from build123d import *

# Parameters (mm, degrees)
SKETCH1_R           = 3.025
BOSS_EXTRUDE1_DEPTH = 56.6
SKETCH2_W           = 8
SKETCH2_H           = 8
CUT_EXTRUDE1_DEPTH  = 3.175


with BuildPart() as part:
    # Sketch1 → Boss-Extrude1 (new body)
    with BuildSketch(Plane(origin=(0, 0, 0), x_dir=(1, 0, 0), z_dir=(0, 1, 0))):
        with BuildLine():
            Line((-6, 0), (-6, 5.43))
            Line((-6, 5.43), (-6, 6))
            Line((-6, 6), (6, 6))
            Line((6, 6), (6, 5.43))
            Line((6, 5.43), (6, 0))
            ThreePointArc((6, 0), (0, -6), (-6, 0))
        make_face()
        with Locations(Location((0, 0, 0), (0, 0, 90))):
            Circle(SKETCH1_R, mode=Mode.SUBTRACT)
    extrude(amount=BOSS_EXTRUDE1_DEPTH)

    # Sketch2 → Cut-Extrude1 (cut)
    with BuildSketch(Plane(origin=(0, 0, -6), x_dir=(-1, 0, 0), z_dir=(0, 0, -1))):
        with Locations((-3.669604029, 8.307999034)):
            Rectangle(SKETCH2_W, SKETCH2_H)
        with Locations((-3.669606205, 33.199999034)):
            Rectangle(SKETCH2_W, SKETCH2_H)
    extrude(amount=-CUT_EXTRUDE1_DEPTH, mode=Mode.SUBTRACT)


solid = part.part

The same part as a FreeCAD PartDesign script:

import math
import FreeCAD as App
import Part
import Sketcher
Q = App.Units.Quantity


def add_polygon(sketch, points):
    """Adds a closed chain of lines whose ends are joined by coincident constraints."""
    first, n = sketch.GeometryCount, len(points)
    for a, b in zip(points, points[1:] + points[:1]):
        sketch.addGeometry(Part.LineSegment(App.Vector(*a, 0), App.Vector(*b, 0)), False)
    for i in range(n):
        sketch.addConstraint(Sketcher.Constraint("Coincident", first + i, 2, first + (i + 1) % n, 1))

doc = App.newDocument("Part")
params = doc.addObject("Spreadsheet::Sheet", "Params")
for row, (alias, value) in enumerate([
    ("sketch1_radius", "6 mm"),
    ("sketch1_diameter", "6.05 mm"),
    ("sketch1_height", "6 mm"),
    ("pad1_length", "56.6 mm"),
    ("sketch2_width", "8 mm"),
    ("pocket1_length", "3.175 mm"),
], start=1):
    params.set(f"A{row}", alias)
    params.set(f"B{row}", "=" + value)
    params.setAlias(f"B{row}", alias)

body = doc.addObject("PartDesign::Body", "Body")

# Sketch on XZ plane
sketch1 = body.newObject("Sketcher::SketchObject", "Sketch")
sketch1.AttachmentSupport = (doc.getObject("XZ_Plane"), [""])
sketch1.MapMode = "FlatFace"
sketch1.addGeometry([
    Part.LineSegment(App.Vector(-6, -6, 0), App.Vector(-6, 0, 0)),  # 0
    Part.ArcOfCircle(Part.Circle(App.Vector(0, 0, 0), App.Vector(0, 0, 1), 6), math.radians(0), math.radians(180)),  # 1
    Part.LineSegment(App.Vector(6, 0, 0), App.Vector(6, -6, 0)),  # 2
    Part.LineSegment(App.Vector(6, -6, 0), App.Vector(-6, -6, 0)),  # 3
    Part.Circle(App.Vector(0, 0, 0), App.Vector(0, 0, 1), 3),  # 4
], False)
sketch1.addConstraint([
    Sketcher.Constraint("Tangent", 0, 2, 1, 2),
    Sketcher.Constraint("Tangent", 1, 1, 2, 1),
    Sketcher.Constraint("Coincident", 2, 2, 3, 1),
    Sketcher.Constraint("Coincident", 3, 2, 0, 1),
    Sketcher.Constraint("Vertical", 0),
    Sketcher.Constraint("Vertical", 2),
    Sketcher.Constraint("Horizontal", 3),
    Sketcher.Constraint("Coincident", 1, 3, -1, 1),
    Sketcher.Constraint("Coincident", 4, 3, -1, 1),
    Sketcher.Constraint("Radius", 1, Q("6 mm")),
    Sketcher.Constraint("Diameter", 4, Q("6.05 mm")),
    Sketcher.Constraint("DistanceY", 0, 1, 0, 2, Q("6 mm")),
])
sketch1.setExpression("Constraints[9]", "Params.sketch1_radius")
sketch1.setExpression("Constraints[10]", "Params.sketch1_diameter")
sketch1.setExpression("Constraints[11]", "Params.sketch1_height")
pad1 = body.newObject("PartDesign::Pad", "Pad")
pad1.Profile = sketch1
pad1.setExpression("Length", "Params.pad1_length")
pad1.Reversed = True

# Sketch on XY plane
sketch2 = body.newObject("Sketcher::SketchObject", "Sketch001")
sketch2.AttachmentSupport = (doc.getObject("XY_Plane"), [""])
sketch2.MapMode = "FlatFace"
sketch2.AttachmentOffset = App.Placement(App.Vector(0, 0, -6), App.Rotation())
add_polygon(sketch2, [(8, 12), (8, 4), (0, 4), (0, 12)])  # lines 0-3
add_polygon(sketch2, [(8, 37), (8, 29), (0, 29), (0, 37)])  # lines 4-7
sketch2.addConstraint([
    Sketcher.Constraint("Vertical", 0),
    Sketcher.Constraint("Horizontal", 1),
    Sketcher.Constraint("Vertical", 2),
    Sketcher.Constraint("Horizontal", 3),
    Sketcher.Constraint("Vertical", 4),
    Sketcher.Constraint("Horizontal", 5),
    Sketcher.Constraint("Vertical", 6),
    Sketcher.Constraint("Horizontal", 7),
    Sketcher.Constraint("Equal", 3, 5),
    Sketcher.Constraint("Equal", 7, 0),
    Sketcher.Constraint("Equal", 2, 4),
    Sketcher.Constraint("DistanceX", 1, 2, 1, 1, Q("8 mm")),
    Sketcher.Constraint("DistanceY", -1, 1, 4, 2, Q("29.199999 mm")),
    Sketcher.Constraint("DistanceY", -1, 1, 0, 2, Q("4.307999 mm")),
    Sketcher.Constraint("DistanceX", -1, 1, 0, 2, Q("7.669604 mm")),
    Sketcher.Constraint("DistanceX", -1, 1, 4, 2, Q("7.669606 mm")),
])
sketch2.setExpression("Constraints[19]", "Params.sketch2_width")
pocket1 = body.newObject("PartDesign::Pocket", "Pocket")
pocket1.Profile = sketch2
pocket1.setExpression("Length", "Params.pocket1_length")
pocket1.Reversed = True

doc.recompute()
